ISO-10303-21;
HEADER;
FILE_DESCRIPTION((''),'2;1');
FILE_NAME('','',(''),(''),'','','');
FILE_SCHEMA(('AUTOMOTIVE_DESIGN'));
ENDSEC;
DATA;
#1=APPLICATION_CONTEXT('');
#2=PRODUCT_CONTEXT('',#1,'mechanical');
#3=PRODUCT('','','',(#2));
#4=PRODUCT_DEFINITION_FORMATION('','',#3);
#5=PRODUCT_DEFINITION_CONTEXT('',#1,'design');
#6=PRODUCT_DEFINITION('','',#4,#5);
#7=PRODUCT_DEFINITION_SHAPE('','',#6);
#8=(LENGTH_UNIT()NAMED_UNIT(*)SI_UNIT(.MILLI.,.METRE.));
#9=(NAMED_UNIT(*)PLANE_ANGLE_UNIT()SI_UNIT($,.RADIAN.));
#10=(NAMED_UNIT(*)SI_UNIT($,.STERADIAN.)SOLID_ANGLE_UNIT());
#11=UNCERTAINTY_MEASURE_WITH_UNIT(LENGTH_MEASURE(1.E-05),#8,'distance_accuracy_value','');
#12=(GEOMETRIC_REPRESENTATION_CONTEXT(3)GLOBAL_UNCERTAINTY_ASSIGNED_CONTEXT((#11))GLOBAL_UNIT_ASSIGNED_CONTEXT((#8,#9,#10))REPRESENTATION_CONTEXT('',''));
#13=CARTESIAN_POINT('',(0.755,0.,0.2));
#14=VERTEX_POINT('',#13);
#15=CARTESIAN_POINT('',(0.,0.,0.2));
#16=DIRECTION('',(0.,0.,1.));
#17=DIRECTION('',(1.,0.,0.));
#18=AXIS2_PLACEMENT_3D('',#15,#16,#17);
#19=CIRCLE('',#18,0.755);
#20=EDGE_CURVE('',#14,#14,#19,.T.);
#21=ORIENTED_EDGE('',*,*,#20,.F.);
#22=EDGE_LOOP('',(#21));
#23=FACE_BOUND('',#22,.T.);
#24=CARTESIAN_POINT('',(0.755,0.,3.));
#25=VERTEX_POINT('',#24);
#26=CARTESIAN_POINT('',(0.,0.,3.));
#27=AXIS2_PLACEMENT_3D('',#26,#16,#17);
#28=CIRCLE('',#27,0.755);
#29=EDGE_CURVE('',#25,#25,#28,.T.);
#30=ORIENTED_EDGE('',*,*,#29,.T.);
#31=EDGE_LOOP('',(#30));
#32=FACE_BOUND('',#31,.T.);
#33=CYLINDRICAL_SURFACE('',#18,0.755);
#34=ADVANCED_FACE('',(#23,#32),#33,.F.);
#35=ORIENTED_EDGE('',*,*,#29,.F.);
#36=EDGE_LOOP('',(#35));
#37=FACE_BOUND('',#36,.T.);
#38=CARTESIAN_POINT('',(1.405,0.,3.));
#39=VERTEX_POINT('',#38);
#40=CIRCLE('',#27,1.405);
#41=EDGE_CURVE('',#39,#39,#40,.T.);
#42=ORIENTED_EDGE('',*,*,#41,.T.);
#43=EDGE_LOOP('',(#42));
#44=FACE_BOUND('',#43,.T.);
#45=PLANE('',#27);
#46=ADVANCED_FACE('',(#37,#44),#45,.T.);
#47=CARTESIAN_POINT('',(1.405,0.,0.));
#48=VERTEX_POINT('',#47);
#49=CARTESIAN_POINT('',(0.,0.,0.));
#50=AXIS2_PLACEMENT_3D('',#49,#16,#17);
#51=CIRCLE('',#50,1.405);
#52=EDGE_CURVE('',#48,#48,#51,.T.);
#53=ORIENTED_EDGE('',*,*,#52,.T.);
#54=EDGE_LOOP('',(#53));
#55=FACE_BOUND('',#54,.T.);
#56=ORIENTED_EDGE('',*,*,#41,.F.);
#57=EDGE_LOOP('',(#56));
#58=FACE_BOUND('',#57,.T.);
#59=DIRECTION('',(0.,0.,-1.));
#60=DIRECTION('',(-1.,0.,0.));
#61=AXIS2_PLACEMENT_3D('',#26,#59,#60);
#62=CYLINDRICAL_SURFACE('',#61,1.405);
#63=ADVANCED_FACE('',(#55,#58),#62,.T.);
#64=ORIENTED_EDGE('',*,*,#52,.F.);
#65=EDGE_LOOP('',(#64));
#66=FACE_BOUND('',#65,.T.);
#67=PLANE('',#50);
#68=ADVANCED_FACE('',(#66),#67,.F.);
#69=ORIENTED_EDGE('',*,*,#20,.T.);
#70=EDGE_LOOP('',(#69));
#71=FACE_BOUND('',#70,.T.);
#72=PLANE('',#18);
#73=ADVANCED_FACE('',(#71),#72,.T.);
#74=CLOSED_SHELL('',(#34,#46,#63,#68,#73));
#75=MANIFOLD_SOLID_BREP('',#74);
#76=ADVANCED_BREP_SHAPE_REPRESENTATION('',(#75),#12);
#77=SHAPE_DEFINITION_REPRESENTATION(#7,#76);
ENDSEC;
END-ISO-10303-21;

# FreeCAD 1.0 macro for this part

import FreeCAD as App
import Part
import Sketcher

V = App.Vector
Q = App.Units.Quantity

doc = App.newDocument("Part")
params = doc.addObject("Spreadsheet::Sheet", "Params")
for row, (alias, value) in enumerate([
    ("sketch1_diameter", "2.81 mm"),
    ("pad1_length", "3 mm"),
    ("sketch2_diameter", "1.51 mm"),
    ("pocket1_length", "2.8 mm"),
], start=1):
    params.set(f"A{row}", alias)
    params.set(f"B{row}", "=" + value)
    params.setAlias(f"B{row}", alias)

body = doc.addObject("PartDesign::Body", "Body")

# Sketch on XY plane
sketch1 = body.newObject("Sketcher::SketchObject", "Sketch")
sketch1.AttachmentSupport = (doc.getObject("XY_Plane"), [""])
sketch1.MapMode = "FlatFace"
sketch1.addGeometry(Part.Circle(V(0, 0, 0), V(0, 0, 1), 1.4), False)
sketch1.addConstraint([
    Sketcher.Constraint("Coincident", 0, 3, -1, 1),
    Sketcher.Constraint("Diameter", 0, Q("2.81 mm")),
])
sketch1.setExpression("Constraints[1]", "Params.sketch1_diameter")
pad1 = body.newObject("PartDesign::Pad", "Pad")
pad1.Profile = sketch1
pad1.setExpression("Length", "Params.pad1_length")

# Sketch on XY plane
sketch2 = body.newObject("Sketcher::SketchObject", "Sketch001")
sketch2.AttachmentSupport = (doc.getObject("XY_Plane"), [""])
sketch2.MapMode = "FlatFace"
sketch2.AttachmentOffset = App.Placement(V(0, 0, 3), App.Rotation())
sketch2.addGeometry(Part.Circle(V(0, 0, 0), V(0, 0, 1), 0.8), False)
sketch2.addConstraint([
    Sketcher.Constraint("Coincident", 0, 3, -1, 1),
    Sketcher.Constraint("Diameter", 0, Q("1.51 mm")),
])
sketch2.setExpression("Constraints[1]", "Params.sketch2_diameter")
pocket1 = body.newObject("PartDesign::Pocket", "Pocket")
pocket1.Profile = sketch2
pocket1.setExpression("Length", "Params.pocket1_length")

doc.recompute()
